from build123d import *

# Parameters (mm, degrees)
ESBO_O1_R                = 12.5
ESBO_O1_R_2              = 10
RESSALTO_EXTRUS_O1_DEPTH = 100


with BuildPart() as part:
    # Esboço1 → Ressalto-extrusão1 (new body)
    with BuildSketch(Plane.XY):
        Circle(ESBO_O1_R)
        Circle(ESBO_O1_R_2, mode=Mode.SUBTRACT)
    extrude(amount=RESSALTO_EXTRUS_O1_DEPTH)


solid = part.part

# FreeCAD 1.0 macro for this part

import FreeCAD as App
import Part
import Sketcher

V = App.Vector
Q = App.Units.Quantity

doc = App.newDocument("Part")
body = doc.addObject("PartDesign::Body", "Body")

sketch1 = doc.addObject("Sketcher::SketchObject", "Sketch")
body.addObject(sketch1)
sketch1.AttachmentSupport = (doc.XY_Plane, [""])
sketch1.MapMode = "FlatFace"
sketch1.addGeometry([
    Part.Circle(V(0, 0, 0), V(0, 0, 1), 12),
    Part.Circle(V(0, 0, 0), V(0, 0, 1), 10),
], False)
sketch1.addConstraint([
    Sketcher.Constraint("Coincident", 0, 3, -1, 1),
    Sketcher.Constraint("Coincident", 1, 3, -1, 1),
    Sketcher.Constraint("Diameter", 0, Q("25 mm")),
    Sketcher.Constraint("Diameter", 1, Q("20 mm")),
])
pad1 = doc.addObject("PartDesign::Pad", "Pad")
body.addObject(pad1)
pad1.Profile = sketch1
pad1.Length = 100

doc.recompute()
